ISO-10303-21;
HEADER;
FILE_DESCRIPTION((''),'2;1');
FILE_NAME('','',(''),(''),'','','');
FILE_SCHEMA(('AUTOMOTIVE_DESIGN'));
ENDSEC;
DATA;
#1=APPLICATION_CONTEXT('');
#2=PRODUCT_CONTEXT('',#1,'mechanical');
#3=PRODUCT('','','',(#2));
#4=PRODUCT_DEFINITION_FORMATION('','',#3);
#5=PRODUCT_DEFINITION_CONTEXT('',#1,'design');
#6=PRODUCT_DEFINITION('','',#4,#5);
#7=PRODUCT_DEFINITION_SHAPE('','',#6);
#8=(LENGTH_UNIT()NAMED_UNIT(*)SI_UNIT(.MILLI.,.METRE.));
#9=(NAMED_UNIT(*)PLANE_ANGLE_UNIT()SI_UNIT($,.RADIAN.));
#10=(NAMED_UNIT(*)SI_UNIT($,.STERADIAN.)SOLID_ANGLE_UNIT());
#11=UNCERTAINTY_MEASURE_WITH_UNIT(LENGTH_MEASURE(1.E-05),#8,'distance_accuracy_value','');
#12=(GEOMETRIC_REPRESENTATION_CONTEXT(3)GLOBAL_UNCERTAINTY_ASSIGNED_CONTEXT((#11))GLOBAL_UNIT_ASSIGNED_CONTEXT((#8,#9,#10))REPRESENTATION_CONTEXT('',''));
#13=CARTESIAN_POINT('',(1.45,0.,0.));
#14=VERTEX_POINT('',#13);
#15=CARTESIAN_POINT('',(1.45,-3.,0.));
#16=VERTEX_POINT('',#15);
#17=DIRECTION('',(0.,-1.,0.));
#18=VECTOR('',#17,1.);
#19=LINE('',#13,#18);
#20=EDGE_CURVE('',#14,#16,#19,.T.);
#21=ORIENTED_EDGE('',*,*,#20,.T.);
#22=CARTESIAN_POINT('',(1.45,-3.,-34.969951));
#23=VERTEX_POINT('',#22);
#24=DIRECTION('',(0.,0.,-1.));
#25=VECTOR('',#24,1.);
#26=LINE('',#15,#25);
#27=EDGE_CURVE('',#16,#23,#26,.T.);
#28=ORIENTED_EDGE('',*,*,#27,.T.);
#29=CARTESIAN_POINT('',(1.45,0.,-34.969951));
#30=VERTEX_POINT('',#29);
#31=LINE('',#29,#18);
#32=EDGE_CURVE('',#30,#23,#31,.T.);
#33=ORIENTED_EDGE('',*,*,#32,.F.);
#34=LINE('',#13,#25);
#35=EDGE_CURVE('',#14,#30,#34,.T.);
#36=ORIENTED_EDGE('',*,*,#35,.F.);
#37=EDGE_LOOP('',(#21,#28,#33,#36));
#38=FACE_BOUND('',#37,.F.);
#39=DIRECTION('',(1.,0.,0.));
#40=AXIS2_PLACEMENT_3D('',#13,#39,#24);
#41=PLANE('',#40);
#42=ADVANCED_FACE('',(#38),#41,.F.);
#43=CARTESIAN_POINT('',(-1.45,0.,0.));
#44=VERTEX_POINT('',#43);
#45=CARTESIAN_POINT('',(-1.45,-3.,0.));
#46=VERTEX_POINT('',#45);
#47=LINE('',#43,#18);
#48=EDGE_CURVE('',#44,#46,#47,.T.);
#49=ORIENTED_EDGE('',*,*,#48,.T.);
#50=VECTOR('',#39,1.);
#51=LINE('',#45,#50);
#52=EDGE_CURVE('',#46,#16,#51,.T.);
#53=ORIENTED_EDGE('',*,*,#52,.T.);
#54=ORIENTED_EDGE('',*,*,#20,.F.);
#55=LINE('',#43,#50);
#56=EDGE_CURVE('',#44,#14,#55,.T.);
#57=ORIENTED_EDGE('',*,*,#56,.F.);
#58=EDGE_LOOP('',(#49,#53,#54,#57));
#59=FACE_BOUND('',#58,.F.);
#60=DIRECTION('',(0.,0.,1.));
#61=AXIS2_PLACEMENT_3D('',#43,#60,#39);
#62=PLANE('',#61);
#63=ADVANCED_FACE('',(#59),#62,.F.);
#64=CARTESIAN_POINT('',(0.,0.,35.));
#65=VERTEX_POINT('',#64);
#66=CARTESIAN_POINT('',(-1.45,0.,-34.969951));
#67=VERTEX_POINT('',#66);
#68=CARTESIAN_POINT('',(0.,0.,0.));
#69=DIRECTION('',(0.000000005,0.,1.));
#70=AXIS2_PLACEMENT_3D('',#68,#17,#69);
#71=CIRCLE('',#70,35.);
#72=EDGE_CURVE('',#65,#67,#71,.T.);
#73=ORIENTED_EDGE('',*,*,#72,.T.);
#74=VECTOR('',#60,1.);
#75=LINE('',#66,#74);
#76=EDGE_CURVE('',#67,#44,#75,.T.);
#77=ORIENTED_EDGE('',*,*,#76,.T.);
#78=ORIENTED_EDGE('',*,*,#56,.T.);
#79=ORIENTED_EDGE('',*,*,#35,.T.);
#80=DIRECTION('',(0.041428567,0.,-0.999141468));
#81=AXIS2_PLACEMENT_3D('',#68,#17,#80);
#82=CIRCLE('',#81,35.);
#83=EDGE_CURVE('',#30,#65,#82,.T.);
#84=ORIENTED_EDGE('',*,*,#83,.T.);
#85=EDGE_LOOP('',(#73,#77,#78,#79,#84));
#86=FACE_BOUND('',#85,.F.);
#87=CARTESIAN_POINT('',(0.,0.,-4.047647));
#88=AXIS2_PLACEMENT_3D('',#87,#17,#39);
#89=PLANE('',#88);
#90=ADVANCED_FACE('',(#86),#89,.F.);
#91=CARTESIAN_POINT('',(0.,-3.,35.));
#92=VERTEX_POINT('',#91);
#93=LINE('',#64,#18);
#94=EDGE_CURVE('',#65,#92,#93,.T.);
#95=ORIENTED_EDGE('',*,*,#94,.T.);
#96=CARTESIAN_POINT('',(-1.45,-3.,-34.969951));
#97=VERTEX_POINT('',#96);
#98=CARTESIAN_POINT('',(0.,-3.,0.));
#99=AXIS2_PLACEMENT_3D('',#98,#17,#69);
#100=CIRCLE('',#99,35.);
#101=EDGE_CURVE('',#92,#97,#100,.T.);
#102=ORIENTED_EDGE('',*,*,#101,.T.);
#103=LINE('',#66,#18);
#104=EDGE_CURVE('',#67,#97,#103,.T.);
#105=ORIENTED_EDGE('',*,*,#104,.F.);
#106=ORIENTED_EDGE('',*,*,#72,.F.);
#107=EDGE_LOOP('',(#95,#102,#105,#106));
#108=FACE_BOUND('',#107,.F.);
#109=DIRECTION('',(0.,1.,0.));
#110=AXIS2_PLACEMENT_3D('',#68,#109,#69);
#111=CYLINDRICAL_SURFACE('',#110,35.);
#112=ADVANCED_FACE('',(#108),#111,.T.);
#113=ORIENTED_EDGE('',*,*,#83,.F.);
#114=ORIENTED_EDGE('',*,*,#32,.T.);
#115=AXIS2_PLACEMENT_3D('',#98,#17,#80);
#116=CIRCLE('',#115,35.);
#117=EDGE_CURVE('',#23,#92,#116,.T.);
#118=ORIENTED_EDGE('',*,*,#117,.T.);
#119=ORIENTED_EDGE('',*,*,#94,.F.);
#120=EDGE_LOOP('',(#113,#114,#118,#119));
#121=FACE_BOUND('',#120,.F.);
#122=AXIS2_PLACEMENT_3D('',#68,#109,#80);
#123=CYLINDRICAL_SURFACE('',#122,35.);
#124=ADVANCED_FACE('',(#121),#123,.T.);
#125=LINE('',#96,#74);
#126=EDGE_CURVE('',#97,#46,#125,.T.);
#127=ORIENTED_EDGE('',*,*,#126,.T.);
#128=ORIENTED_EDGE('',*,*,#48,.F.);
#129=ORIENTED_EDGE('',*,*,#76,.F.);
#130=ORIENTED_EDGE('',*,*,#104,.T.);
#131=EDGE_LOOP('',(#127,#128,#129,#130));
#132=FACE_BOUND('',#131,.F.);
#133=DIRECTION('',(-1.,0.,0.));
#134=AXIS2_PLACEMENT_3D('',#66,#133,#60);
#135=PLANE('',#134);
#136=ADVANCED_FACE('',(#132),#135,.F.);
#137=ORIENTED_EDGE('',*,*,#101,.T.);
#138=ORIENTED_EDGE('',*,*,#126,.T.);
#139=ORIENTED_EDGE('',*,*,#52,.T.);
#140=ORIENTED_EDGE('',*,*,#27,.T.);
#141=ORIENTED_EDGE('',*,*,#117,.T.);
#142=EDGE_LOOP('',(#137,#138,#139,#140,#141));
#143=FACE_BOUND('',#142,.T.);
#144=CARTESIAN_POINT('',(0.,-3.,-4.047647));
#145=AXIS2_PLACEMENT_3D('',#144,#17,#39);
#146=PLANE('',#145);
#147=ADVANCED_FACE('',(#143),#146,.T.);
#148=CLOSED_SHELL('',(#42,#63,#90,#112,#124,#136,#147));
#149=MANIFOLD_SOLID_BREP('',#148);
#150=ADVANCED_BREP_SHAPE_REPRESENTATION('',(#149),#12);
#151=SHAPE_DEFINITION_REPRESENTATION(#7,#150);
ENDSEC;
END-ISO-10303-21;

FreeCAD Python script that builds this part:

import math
import FreeCAD as App
import Part
import Sketcher
Q = App.Units.Quantity

doc = App.newDocument("Part")
body = doc.addObject("PartDesign::Body", "Body")

# Sketch on XZ plane
sketch1 = body.newObject("Sketcher::SketchObject", "Sketch")
sketch1.AttachmentSupport = (doc.getObject("XZ_Plane"), [""])
sketch1.MapMode = "FlatFace"
sketch1.addGeometry(Part.LineSegment(App.Vector(1.45, 0, 0), App.Vector(1.45, -34.969951, 0)), False)
sketch1.addGeometry(Part.ArcOfCircle(Part.Circle(App.Vector(0, 0, 0), App.Vector(0, 0, 1), 35), math.radians(-87.625638), math.radians(90)), False)
sketch1.addGeometry(Part.ArcOfCircle(Part.Circle(App.Vector(0, 0, 0), App.Vector(0, 0, 1), 35), math.radians(90), math.radians(267.625638)), False)
sketch1.addGeometry(Part.LineSegment(App.Vector(-1.45, -34.969951, 0), App.Vector(-1.45, 0, 0)), False)
sketch1.addGeometry(Part.LineSegment(App.Vector(-1.45, 0, 0), App.Vector(1.45, 0, 0)), False)
sketch1.addConstraint(Sketcher.Constraint("Coincident", 0, 2, 1, 1))
sketch1.addConstraint(Sketcher.Constraint("Tangent", 1, 2, 2, 1))
sketch1.addConstraint(Sketcher.Constraint("Coincident", 2, 2, 3, 1))
sketch1.addConstraint(Sketcher.Constraint("Coincident", 3, 2, 4, 1))
sketch1.addConstraint(Sketcher.Constraint("Coincident", 4, 2, 0, 1))
sketch1.addConstraint(Sketcher.Constraint("Vertical", 0))
sketch1.addConstraint(Sketcher.Constraint("Vertical", 3))
sketch1.addConstraint(Sketcher.Constraint("Horizontal", 4))
sketch1.addConstraint(Sketcher.Constraint("Coincident", 1, 3, -1, 1))
sketch1.addConstraint(Sketcher.Constraint("Equal", 1, 2))
sketch1.addConstraint(Sketcher.Constraint("Symmetric", 3, 2, 4, 2, -1, 1))
sketch1.addConstraint(Sketcher.Constraint("PointOnObject", 1, 2, -2))
sketch1.addConstraint(Sketcher.Constraint("Radius", 1, Q("35 mm")))
sketch1.addConstraint(Sketcher.Constraint("DistanceX", 4, 1, 4, 2, Q("2.9 mm")))
pad1 = body.newObject("PartDesign::Pad", "Pad")
pad1.Profile = sketch1
pad1.Length = 3

doc.recompute()
